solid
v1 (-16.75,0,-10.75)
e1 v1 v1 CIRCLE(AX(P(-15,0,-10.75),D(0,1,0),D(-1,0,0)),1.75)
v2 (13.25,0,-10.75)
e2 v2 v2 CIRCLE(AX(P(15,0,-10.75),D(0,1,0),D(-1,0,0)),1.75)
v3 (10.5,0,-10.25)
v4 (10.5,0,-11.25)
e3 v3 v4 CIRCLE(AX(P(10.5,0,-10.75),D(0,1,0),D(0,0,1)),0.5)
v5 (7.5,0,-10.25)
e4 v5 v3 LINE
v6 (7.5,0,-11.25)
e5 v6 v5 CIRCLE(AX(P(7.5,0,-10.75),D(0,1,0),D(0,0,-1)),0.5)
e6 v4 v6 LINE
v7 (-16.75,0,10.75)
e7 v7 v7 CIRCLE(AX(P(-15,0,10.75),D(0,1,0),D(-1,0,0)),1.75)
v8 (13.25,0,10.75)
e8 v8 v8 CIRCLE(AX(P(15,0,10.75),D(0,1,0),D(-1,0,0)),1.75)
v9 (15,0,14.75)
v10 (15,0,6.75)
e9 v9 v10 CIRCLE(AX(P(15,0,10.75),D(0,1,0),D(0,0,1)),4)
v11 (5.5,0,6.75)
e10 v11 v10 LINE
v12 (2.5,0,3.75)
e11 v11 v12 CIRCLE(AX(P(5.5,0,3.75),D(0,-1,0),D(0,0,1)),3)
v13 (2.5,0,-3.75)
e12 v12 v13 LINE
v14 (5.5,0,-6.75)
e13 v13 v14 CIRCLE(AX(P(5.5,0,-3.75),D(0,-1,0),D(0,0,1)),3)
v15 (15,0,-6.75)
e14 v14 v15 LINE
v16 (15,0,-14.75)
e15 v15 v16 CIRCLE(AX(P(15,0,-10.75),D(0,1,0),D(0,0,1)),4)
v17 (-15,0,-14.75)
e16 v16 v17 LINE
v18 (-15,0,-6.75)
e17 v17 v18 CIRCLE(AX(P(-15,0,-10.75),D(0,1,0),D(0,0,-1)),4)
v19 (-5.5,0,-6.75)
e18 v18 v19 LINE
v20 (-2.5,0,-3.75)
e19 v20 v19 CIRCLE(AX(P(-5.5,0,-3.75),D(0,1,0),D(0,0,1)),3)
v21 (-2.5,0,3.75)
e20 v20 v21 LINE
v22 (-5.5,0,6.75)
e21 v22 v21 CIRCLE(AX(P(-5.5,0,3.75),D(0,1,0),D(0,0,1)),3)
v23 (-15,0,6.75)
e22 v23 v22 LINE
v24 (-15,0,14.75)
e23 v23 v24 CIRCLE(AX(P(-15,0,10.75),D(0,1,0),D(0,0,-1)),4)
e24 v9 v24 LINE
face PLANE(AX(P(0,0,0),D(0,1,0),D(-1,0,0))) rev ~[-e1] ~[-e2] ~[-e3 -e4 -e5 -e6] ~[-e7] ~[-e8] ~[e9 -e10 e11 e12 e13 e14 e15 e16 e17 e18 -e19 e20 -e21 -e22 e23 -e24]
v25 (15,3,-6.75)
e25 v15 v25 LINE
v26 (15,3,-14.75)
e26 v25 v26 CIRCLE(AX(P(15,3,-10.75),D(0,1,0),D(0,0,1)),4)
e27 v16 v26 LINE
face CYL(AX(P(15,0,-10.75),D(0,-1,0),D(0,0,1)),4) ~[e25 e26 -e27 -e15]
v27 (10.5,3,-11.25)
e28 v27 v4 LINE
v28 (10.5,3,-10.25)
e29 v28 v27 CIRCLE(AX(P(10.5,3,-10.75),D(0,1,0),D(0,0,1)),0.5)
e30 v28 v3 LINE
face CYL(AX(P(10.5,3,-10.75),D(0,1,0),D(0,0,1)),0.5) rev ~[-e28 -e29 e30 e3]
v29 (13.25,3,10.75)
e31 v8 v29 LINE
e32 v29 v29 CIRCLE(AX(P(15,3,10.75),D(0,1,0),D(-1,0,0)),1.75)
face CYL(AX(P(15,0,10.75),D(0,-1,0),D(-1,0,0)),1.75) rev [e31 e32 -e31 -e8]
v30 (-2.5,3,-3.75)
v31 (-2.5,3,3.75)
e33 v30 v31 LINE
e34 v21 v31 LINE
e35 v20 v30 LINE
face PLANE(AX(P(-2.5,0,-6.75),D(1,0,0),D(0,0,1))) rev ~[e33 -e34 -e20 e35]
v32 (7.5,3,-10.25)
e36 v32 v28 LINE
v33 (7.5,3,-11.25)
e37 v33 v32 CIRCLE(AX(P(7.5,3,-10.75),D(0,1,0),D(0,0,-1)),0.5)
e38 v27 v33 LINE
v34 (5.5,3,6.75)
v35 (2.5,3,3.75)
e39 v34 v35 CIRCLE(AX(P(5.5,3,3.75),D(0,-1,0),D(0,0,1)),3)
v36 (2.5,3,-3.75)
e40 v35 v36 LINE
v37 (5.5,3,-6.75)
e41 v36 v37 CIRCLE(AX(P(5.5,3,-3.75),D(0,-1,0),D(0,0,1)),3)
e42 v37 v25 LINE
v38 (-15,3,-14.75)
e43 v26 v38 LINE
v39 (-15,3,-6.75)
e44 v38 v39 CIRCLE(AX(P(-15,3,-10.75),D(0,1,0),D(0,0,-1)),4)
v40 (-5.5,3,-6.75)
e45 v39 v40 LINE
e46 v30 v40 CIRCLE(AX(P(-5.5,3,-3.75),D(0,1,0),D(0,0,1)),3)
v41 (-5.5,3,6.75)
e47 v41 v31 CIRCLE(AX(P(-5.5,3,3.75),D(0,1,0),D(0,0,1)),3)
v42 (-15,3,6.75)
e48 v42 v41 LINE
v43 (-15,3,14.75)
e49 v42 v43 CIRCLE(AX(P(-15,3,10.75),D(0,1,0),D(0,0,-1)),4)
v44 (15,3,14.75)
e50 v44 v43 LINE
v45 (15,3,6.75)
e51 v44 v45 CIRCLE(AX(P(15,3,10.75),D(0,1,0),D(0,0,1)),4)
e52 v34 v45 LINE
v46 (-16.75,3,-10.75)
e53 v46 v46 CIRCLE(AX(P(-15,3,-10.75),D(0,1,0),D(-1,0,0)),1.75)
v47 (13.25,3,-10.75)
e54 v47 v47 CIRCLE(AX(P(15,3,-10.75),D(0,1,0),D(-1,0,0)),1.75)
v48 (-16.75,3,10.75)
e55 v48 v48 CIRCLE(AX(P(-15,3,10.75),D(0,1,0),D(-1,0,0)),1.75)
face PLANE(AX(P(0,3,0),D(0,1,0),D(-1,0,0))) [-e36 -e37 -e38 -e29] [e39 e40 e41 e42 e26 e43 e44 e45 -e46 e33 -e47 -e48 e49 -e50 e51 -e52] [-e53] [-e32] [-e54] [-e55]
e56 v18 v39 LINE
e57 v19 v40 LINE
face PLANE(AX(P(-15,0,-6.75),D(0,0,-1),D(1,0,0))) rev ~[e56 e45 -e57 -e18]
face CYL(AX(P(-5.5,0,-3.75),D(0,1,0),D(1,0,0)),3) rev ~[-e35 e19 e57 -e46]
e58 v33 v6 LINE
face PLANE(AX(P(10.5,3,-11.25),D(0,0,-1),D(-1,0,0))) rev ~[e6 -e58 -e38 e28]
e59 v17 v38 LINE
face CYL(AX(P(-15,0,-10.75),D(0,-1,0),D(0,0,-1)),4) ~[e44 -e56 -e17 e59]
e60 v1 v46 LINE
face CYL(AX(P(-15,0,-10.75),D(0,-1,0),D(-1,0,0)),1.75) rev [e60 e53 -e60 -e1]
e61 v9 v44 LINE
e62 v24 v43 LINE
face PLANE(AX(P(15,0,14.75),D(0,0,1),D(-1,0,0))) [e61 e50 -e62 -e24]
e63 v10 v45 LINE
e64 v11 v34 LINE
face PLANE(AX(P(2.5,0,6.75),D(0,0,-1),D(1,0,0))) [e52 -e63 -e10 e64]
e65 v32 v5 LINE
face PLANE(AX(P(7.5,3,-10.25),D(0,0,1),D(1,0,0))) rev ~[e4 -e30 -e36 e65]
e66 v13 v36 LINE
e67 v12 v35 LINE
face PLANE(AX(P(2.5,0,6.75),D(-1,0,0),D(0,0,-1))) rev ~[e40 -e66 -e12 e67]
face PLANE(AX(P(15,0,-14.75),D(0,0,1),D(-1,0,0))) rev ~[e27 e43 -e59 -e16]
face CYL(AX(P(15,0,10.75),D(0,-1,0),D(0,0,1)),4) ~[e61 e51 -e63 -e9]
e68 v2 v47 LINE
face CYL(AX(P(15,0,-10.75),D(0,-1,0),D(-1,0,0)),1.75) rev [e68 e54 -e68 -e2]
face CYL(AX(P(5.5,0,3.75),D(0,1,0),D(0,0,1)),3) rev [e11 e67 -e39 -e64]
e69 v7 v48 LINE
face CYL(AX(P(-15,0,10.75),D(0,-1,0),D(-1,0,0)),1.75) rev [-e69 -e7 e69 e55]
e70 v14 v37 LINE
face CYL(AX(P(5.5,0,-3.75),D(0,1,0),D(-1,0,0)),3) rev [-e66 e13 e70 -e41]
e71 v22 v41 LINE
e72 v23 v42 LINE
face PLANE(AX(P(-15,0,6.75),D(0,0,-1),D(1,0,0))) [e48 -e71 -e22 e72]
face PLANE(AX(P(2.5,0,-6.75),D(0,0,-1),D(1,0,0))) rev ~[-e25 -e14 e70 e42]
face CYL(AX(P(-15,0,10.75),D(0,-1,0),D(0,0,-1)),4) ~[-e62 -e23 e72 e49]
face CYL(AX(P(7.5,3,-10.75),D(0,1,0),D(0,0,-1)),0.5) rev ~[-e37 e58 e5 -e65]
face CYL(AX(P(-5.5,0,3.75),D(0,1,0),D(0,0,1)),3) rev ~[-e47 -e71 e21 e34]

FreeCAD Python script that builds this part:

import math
import FreeCAD as App
import Part
import Sketcher
Q = App.Units.Quantity


def edges_at(feature, points):
    """Names of the edges that pass closest to the given points."""
    edges = feature.Shape.Edges
    near = lambda p: min(range(len(edges)), key=lambda i: edges[i].distToShape(Part.Vertex(*p))[0])
    return sorted({f"Edge{near(p) + 1}" for p in points})

doc = App.newDocument("Part")
body = doc.addObject("PartDesign::Body", "Body")

sketch1 = body.newObject("Sketcher::SketchObject", "Sketch")
sketch1.AttachmentSupport = (doc.getObject("XZ_Plane"), [""])
sketch1.MapMode = "FlatFace"
sketch1.addGeometry([
    Part.LineSegment(App.Vector(-2.5, 6.75, 0), App.Vector(-15, 6.75, 0)),
    Part.ArcOfCircle(Part.Circle(App.Vector(-15, 10.75, 0), App.Vector(0, 0, 1), 4), math.radians(90), math.radians(270)),
    Part.LineSegment(App.Vector(-15, 14.75, 0), App.Vector(15, 14.75, 0)),
    Part.ArcOfCircle(Part.Circle(App.Vector(15, 10.75, 0), App.Vector(0, 0, 1), 4), math.radians(-90), math.radians(90)),
    Part.LineSegment(App.Vector(15, 6.75, 0), App.Vector(2.5, 6.75, 0)),
    Part.LineSegment(App.Vector(2.5, 6.75, 0), App.Vector(2.5, -6.75, 0)),
    Part.LineSegment(App.Vector(2.5, -6.75, 0), App.Vector(15, -6.75, 0)),
    Part.ArcOfCircle(Part.Circle(App.Vector(15, -10.75, 0), App.Vector(0, 0, 1), 4), math.radians(-90), math.radians(90)),
    Part.LineSegment(App.Vector(15, -14.75, 0), App.Vector(-15, -14.75, 0)),
    Part.ArcOfCircle(Part.Circle(App.Vector(-15, -10.75, 0), App.Vector(0, 0, 1), 4), math.radians(90), math.radians(270)),
    Part.LineSegment(App.Vector(-15, -6.75, 0), App.Vector(-2.5, -6.75, 0)),
    Part.LineSegment(App.Vector(-2.5, -6.75, 0), App.Vector(-2.5, 6.75, 0)),
    Part.Circle(App.Vector(15, 10.75, 0), App.Vector(0, 0, 1), 1.75),
    Part.Circle(App.Vector(-15, 10.75, 0), App.Vector(0, 0, 1), 1.75),
    Part.Circle(App.Vector(-15, -10.75, 0), App.Vector(0, 0, 1), 1.75),
    Part.Circle(App.Vector(15, -10.75, 0), App.Vector(0, 0, 1), 1.75),
], False)
sketch1.addConstraint([
    Sketcher.Constraint("Tangent", 0, 2, 1, 2),
    Sketcher.Constraint("Tangent", 1, 1, 2, 1),
    Sketcher.Constraint("Tangent", 2, 2, 3, 2),
    Sketcher.Constraint("Tangent", 3, 1, 4, 1),
    Sketcher.Constraint("Coincident", 4, 2, 5, 1),
    Sketcher.Constraint("Coincident", 5, 2, 6, 1),
    Sketcher.Constraint("Tangent", 6, 2, 7, 2),
    Sketcher.Constraint("Tangent", 7, 1, 8, 1),
    Sketcher.Constraint("Tangent", 8, 2, 9, 2),
    Sketcher.Constraint("Tangent", 9, 1, 10, 1),
    Sketcher.Constraint("Coincident", 10, 2, 11, 1),
    Sketcher.Constraint("Coincident", 11, 2, 0, 1),
    Sketcher.Constraint("Horizontal", 0),
    Sketcher.Constraint("Horizontal", 2),
    Sketcher.Constraint("Horizontal", 4),
    Sketcher.Constraint("Vertical", 5),
    Sketcher.Constraint("Horizontal", 6),
    Sketcher.Constraint("Horizontal", 8),
    Sketcher.Constraint("Horizontal", 10),
    Sketcher.Constraint("Vertical", 11),
    Sketcher.Constraint("Coincident", 12, 3, 3, 3),
    Sketcher.Constraint("Coincident", 13, 3, 1, 3),
    Sketcher.Constraint("Coincident", 14, 3, 9, 3),
    Sketcher.Constraint("Coincident", 15, 3, 7, 3),
    Sketcher.Constraint("Equal", 1, 3),
    Sketcher.Constraint("Equal", 3, 7),
    Sketcher.Constraint("Equal", 7, 9),
    Sketcher.Constraint("Equal", 12, 13),
    Sketcher.Constraint("Equal", 13, 14),
    Sketcher.Constraint("Equal", 14, 15),
    Sketcher.Constraint("Symmetric", 1, 3, 7, 3, -1, 1),
    Sketcher.Constraint("Vertical", 3, 3, 7, 3),
    Sketcher.Constraint("Vertical", 1, 3, 9, 3),
    Sketcher.Constraint("Equal", 0, 4),
    Sketcher.Constraint("Radius", 1, Q("4 mm")),
    Sketcher.Constraint("Diameter", 12, Q("3.5 mm")),
    Sketcher.Constraint("DistanceX", 2, 1, 2, 2, Q("30 mm")),
    Sketcher.Constraint("DistanceX", 10, 2, 5, 2, Q("5 mm")),
    Sketcher.Constraint("DistanceY", 7, 3, 3, 3, Q("21.5 mm")),
])
pad1 = body.newObject("PartDesign::Pad", "Pad")
pad1.Profile = sketch1
pad1.Length = 3
pad1.Reversed = True
doc.recompute()

fillet = body.newObject("PartDesign::Fillet", "Fillet")
fillet.Base = (pad1, edges_at(pad1, [
    (-2.5, 1.5, -6.75),
    (-2.5, 1.5, 6.75),
    (2.5, 1.5, 6.75),
    (2.5, 1.5, -6.75),
]))
fillet.Radius = 3

sketch2 = body.newObject("Sketcher::SketchObject", "Sketch001")
sketch2.AttachmentSupport = (doc.getObject("XZ_Plane"), [""])
sketch2.MapMode = "FlatFace"
sketch2.AttachmentOffset = App.Placement(App.Vector(0, 0, -3), App.Rotation())
sketch2.addGeometry([
    Part.ArcOfCircle(Part.Circle(App.Vector(10.5, -10.75, 0), App.Vector(0, 0, 1), 0.5), math.radians(-90), math.radians(90)),
    Part.LineSegment(App.Vector(10.5, -11.25, 0), App.Vector(7.5, -11.25, 0)),
    Part.ArcOfCircle(Part.Circle(App.Vector(7.5, -10.75, 0), App.Vector(0, 0, 1), 0.5), math.radians(90), math.radians(270)),
    Part.LineSegment(App.Vector(7.5, -10.25, 0), App.Vector(10.5, -10.25, 0)),
], False)
sketch2.addConstraint([
    Sketcher.Constraint("Tangent", 0, 1, 1, 1),
    Sketcher.Constraint("Tangent", 1, 2, 2, 2),
    Sketcher.Constraint("Tangent", 2, 1, 3, 1),
    Sketcher.Constraint("Tangent", 3, 2, 0, 2),
    Sketcher.Constraint("Horizontal", 1),
    Sketcher.Constraint("Horizontal", 3),
    Sketcher.Constraint("Radius", 0, Q("0.5 mm")),
    Sketcher.Constraint("DistanceX", 1, 2, 1, 1, Q("3 mm")),
    Sketcher.Constraint("DistanceX", -1, 1, 0, 3, Q("10.5 mm")),
    Sketcher.Constraint("DistanceY", 0, 3, -1, 1, Q("10.75 mm")),
])
pocket1 = body.newObject("PartDesign::Pocket", "Pocket")
pocket1.Profile = sketch2
pocket1.Length = 3
pocket1.Reversed = True

doc.recompute()
